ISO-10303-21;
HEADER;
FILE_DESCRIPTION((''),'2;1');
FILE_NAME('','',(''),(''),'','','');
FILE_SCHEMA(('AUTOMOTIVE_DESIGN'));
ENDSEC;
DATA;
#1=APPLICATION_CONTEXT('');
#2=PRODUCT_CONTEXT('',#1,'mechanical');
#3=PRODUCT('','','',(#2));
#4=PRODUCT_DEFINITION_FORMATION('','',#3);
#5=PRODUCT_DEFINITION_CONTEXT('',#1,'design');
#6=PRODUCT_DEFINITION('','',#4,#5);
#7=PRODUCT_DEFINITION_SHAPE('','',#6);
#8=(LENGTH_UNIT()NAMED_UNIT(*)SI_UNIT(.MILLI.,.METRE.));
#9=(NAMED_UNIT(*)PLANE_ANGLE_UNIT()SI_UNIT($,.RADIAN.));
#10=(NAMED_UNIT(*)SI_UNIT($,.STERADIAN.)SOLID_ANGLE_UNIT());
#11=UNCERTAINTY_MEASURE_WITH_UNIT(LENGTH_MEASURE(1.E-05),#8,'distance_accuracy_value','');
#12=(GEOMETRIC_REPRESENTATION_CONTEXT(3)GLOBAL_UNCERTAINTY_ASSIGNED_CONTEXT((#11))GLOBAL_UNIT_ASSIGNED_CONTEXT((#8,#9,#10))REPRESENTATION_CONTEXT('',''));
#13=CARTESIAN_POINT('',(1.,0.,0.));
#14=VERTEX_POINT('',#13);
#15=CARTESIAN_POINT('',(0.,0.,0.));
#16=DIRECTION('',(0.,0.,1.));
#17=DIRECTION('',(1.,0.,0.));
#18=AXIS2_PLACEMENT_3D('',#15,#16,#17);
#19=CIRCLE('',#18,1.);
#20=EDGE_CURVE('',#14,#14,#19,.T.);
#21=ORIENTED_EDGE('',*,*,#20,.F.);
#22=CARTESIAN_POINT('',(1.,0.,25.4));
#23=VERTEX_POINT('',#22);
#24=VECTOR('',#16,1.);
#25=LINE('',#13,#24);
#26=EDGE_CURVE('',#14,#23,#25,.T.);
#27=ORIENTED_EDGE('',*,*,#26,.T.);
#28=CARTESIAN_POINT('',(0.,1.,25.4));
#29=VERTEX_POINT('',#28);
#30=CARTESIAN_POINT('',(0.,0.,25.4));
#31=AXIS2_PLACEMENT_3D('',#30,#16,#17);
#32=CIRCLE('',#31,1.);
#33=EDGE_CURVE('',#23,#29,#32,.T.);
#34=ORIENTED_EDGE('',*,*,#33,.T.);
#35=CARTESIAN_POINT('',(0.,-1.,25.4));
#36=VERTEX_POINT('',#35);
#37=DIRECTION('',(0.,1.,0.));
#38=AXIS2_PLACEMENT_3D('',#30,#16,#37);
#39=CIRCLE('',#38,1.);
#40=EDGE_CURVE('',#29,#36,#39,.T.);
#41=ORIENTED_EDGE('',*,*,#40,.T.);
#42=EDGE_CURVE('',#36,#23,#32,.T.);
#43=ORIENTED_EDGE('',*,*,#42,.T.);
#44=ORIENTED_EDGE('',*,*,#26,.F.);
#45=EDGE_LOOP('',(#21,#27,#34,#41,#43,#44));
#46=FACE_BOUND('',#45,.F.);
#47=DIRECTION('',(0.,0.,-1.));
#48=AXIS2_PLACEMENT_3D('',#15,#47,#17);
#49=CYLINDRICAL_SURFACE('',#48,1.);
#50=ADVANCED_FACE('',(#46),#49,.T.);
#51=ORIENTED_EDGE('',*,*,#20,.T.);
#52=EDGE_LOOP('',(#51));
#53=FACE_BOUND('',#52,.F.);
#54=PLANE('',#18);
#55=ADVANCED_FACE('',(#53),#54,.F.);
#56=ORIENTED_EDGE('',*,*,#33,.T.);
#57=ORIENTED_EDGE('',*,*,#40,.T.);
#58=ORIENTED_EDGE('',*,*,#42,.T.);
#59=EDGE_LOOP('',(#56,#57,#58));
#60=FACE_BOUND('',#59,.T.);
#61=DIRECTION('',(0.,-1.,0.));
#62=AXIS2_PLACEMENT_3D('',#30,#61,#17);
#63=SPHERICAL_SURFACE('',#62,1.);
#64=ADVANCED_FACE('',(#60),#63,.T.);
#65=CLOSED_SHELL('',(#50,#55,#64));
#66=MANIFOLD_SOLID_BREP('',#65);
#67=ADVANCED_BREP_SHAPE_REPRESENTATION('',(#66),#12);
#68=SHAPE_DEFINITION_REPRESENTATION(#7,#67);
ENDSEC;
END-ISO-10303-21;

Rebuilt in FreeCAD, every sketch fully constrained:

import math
import FreeCAD as App
import Part
import Sketcher
Q = App.Units.Quantity

doc = App.newDocument("Part")
body = doc.addObject("PartDesign::Body", "Body")

sketch1 = doc.addObject("Sketcher::SketchObject", "Sketch")
body.addObject(sketch1)
sketch1.AttachmentSupport = (doc.XY_Plane, [""])
sketch1.MapMode = "FlatFace"
sketch1.addGeometry(Part.Circle(App.Vector(0, 0, 0), App.Vector(0, 0, 1), 1), False)
sketch1.addConstraint([
    Sketcher.Constraint("Coincident", 0, 3, -1, 1),
    Sketcher.Constraint("Diameter", 0, Q("2 mm")),
])
pad1 = doc.addObject("PartDesign::Pad", "Pad")
body.addObject(pad1)
pad1.Profile = sketch1
pad1.Length = 25.4

sketch2 = doc.addObject("Sketcher::SketchObject", "Sketch001")
body.addObject(sketch2)
sketch2.AttachmentSupport = (doc.YZ_Plane, [""])
sketch2.MapMode = "FlatFace"
sketch2.addGeometry([
    Part.LineSegment(App.Vector(-1, 25.4, 0), App.Vector(1, 25.4, 0)),
    Part.ArcOfCircle(Part.Circle(App.Vector(0, 25.4, 0), App.Vector(0, 0, 1), 1), math.radians(0), math.radians(180)),
], False)
sketch2.addGeometry(Part.LineSegment(App.Vector(1, 25.4, 0), App.Vector(-1, 25.4, 0)), True)
sketch2.addConstraint([
    Sketcher.Constraint("Coincident", 0, 1, 1, 2),
    Sketcher.Constraint("Coincident", 1, 1, 0, 2),
    Sketcher.Constraint("Horizontal", 0),
    Sketcher.Constraint("Horizontal", 2),
    Sketcher.Constraint("Coincident", 2, 1, 1, 1),
    Sketcher.Constraint("PointOnObject", 1, 3, -2),
    Sketcher.Constraint("Horizontal", 1, 3, 0, 1),
    Sketcher.Constraint("Equal", 0, 2),
    Sketcher.Constraint("Radius", 1, Q("1 mm")),
    Sketcher.Constraint("DistanceY", -1, 1, 1, 3, Q("25.4 mm")),
])
revolution = doc.addObject("PartDesign::Revolution", "Revolution")
body.addObject(revolution)
revolution.Profile = sketch2
revolution.ReferenceAxis = (sketch2, ["Axis0"])
revolution.Angle = 180
revolution.Midplane = True

doc.recompute()
